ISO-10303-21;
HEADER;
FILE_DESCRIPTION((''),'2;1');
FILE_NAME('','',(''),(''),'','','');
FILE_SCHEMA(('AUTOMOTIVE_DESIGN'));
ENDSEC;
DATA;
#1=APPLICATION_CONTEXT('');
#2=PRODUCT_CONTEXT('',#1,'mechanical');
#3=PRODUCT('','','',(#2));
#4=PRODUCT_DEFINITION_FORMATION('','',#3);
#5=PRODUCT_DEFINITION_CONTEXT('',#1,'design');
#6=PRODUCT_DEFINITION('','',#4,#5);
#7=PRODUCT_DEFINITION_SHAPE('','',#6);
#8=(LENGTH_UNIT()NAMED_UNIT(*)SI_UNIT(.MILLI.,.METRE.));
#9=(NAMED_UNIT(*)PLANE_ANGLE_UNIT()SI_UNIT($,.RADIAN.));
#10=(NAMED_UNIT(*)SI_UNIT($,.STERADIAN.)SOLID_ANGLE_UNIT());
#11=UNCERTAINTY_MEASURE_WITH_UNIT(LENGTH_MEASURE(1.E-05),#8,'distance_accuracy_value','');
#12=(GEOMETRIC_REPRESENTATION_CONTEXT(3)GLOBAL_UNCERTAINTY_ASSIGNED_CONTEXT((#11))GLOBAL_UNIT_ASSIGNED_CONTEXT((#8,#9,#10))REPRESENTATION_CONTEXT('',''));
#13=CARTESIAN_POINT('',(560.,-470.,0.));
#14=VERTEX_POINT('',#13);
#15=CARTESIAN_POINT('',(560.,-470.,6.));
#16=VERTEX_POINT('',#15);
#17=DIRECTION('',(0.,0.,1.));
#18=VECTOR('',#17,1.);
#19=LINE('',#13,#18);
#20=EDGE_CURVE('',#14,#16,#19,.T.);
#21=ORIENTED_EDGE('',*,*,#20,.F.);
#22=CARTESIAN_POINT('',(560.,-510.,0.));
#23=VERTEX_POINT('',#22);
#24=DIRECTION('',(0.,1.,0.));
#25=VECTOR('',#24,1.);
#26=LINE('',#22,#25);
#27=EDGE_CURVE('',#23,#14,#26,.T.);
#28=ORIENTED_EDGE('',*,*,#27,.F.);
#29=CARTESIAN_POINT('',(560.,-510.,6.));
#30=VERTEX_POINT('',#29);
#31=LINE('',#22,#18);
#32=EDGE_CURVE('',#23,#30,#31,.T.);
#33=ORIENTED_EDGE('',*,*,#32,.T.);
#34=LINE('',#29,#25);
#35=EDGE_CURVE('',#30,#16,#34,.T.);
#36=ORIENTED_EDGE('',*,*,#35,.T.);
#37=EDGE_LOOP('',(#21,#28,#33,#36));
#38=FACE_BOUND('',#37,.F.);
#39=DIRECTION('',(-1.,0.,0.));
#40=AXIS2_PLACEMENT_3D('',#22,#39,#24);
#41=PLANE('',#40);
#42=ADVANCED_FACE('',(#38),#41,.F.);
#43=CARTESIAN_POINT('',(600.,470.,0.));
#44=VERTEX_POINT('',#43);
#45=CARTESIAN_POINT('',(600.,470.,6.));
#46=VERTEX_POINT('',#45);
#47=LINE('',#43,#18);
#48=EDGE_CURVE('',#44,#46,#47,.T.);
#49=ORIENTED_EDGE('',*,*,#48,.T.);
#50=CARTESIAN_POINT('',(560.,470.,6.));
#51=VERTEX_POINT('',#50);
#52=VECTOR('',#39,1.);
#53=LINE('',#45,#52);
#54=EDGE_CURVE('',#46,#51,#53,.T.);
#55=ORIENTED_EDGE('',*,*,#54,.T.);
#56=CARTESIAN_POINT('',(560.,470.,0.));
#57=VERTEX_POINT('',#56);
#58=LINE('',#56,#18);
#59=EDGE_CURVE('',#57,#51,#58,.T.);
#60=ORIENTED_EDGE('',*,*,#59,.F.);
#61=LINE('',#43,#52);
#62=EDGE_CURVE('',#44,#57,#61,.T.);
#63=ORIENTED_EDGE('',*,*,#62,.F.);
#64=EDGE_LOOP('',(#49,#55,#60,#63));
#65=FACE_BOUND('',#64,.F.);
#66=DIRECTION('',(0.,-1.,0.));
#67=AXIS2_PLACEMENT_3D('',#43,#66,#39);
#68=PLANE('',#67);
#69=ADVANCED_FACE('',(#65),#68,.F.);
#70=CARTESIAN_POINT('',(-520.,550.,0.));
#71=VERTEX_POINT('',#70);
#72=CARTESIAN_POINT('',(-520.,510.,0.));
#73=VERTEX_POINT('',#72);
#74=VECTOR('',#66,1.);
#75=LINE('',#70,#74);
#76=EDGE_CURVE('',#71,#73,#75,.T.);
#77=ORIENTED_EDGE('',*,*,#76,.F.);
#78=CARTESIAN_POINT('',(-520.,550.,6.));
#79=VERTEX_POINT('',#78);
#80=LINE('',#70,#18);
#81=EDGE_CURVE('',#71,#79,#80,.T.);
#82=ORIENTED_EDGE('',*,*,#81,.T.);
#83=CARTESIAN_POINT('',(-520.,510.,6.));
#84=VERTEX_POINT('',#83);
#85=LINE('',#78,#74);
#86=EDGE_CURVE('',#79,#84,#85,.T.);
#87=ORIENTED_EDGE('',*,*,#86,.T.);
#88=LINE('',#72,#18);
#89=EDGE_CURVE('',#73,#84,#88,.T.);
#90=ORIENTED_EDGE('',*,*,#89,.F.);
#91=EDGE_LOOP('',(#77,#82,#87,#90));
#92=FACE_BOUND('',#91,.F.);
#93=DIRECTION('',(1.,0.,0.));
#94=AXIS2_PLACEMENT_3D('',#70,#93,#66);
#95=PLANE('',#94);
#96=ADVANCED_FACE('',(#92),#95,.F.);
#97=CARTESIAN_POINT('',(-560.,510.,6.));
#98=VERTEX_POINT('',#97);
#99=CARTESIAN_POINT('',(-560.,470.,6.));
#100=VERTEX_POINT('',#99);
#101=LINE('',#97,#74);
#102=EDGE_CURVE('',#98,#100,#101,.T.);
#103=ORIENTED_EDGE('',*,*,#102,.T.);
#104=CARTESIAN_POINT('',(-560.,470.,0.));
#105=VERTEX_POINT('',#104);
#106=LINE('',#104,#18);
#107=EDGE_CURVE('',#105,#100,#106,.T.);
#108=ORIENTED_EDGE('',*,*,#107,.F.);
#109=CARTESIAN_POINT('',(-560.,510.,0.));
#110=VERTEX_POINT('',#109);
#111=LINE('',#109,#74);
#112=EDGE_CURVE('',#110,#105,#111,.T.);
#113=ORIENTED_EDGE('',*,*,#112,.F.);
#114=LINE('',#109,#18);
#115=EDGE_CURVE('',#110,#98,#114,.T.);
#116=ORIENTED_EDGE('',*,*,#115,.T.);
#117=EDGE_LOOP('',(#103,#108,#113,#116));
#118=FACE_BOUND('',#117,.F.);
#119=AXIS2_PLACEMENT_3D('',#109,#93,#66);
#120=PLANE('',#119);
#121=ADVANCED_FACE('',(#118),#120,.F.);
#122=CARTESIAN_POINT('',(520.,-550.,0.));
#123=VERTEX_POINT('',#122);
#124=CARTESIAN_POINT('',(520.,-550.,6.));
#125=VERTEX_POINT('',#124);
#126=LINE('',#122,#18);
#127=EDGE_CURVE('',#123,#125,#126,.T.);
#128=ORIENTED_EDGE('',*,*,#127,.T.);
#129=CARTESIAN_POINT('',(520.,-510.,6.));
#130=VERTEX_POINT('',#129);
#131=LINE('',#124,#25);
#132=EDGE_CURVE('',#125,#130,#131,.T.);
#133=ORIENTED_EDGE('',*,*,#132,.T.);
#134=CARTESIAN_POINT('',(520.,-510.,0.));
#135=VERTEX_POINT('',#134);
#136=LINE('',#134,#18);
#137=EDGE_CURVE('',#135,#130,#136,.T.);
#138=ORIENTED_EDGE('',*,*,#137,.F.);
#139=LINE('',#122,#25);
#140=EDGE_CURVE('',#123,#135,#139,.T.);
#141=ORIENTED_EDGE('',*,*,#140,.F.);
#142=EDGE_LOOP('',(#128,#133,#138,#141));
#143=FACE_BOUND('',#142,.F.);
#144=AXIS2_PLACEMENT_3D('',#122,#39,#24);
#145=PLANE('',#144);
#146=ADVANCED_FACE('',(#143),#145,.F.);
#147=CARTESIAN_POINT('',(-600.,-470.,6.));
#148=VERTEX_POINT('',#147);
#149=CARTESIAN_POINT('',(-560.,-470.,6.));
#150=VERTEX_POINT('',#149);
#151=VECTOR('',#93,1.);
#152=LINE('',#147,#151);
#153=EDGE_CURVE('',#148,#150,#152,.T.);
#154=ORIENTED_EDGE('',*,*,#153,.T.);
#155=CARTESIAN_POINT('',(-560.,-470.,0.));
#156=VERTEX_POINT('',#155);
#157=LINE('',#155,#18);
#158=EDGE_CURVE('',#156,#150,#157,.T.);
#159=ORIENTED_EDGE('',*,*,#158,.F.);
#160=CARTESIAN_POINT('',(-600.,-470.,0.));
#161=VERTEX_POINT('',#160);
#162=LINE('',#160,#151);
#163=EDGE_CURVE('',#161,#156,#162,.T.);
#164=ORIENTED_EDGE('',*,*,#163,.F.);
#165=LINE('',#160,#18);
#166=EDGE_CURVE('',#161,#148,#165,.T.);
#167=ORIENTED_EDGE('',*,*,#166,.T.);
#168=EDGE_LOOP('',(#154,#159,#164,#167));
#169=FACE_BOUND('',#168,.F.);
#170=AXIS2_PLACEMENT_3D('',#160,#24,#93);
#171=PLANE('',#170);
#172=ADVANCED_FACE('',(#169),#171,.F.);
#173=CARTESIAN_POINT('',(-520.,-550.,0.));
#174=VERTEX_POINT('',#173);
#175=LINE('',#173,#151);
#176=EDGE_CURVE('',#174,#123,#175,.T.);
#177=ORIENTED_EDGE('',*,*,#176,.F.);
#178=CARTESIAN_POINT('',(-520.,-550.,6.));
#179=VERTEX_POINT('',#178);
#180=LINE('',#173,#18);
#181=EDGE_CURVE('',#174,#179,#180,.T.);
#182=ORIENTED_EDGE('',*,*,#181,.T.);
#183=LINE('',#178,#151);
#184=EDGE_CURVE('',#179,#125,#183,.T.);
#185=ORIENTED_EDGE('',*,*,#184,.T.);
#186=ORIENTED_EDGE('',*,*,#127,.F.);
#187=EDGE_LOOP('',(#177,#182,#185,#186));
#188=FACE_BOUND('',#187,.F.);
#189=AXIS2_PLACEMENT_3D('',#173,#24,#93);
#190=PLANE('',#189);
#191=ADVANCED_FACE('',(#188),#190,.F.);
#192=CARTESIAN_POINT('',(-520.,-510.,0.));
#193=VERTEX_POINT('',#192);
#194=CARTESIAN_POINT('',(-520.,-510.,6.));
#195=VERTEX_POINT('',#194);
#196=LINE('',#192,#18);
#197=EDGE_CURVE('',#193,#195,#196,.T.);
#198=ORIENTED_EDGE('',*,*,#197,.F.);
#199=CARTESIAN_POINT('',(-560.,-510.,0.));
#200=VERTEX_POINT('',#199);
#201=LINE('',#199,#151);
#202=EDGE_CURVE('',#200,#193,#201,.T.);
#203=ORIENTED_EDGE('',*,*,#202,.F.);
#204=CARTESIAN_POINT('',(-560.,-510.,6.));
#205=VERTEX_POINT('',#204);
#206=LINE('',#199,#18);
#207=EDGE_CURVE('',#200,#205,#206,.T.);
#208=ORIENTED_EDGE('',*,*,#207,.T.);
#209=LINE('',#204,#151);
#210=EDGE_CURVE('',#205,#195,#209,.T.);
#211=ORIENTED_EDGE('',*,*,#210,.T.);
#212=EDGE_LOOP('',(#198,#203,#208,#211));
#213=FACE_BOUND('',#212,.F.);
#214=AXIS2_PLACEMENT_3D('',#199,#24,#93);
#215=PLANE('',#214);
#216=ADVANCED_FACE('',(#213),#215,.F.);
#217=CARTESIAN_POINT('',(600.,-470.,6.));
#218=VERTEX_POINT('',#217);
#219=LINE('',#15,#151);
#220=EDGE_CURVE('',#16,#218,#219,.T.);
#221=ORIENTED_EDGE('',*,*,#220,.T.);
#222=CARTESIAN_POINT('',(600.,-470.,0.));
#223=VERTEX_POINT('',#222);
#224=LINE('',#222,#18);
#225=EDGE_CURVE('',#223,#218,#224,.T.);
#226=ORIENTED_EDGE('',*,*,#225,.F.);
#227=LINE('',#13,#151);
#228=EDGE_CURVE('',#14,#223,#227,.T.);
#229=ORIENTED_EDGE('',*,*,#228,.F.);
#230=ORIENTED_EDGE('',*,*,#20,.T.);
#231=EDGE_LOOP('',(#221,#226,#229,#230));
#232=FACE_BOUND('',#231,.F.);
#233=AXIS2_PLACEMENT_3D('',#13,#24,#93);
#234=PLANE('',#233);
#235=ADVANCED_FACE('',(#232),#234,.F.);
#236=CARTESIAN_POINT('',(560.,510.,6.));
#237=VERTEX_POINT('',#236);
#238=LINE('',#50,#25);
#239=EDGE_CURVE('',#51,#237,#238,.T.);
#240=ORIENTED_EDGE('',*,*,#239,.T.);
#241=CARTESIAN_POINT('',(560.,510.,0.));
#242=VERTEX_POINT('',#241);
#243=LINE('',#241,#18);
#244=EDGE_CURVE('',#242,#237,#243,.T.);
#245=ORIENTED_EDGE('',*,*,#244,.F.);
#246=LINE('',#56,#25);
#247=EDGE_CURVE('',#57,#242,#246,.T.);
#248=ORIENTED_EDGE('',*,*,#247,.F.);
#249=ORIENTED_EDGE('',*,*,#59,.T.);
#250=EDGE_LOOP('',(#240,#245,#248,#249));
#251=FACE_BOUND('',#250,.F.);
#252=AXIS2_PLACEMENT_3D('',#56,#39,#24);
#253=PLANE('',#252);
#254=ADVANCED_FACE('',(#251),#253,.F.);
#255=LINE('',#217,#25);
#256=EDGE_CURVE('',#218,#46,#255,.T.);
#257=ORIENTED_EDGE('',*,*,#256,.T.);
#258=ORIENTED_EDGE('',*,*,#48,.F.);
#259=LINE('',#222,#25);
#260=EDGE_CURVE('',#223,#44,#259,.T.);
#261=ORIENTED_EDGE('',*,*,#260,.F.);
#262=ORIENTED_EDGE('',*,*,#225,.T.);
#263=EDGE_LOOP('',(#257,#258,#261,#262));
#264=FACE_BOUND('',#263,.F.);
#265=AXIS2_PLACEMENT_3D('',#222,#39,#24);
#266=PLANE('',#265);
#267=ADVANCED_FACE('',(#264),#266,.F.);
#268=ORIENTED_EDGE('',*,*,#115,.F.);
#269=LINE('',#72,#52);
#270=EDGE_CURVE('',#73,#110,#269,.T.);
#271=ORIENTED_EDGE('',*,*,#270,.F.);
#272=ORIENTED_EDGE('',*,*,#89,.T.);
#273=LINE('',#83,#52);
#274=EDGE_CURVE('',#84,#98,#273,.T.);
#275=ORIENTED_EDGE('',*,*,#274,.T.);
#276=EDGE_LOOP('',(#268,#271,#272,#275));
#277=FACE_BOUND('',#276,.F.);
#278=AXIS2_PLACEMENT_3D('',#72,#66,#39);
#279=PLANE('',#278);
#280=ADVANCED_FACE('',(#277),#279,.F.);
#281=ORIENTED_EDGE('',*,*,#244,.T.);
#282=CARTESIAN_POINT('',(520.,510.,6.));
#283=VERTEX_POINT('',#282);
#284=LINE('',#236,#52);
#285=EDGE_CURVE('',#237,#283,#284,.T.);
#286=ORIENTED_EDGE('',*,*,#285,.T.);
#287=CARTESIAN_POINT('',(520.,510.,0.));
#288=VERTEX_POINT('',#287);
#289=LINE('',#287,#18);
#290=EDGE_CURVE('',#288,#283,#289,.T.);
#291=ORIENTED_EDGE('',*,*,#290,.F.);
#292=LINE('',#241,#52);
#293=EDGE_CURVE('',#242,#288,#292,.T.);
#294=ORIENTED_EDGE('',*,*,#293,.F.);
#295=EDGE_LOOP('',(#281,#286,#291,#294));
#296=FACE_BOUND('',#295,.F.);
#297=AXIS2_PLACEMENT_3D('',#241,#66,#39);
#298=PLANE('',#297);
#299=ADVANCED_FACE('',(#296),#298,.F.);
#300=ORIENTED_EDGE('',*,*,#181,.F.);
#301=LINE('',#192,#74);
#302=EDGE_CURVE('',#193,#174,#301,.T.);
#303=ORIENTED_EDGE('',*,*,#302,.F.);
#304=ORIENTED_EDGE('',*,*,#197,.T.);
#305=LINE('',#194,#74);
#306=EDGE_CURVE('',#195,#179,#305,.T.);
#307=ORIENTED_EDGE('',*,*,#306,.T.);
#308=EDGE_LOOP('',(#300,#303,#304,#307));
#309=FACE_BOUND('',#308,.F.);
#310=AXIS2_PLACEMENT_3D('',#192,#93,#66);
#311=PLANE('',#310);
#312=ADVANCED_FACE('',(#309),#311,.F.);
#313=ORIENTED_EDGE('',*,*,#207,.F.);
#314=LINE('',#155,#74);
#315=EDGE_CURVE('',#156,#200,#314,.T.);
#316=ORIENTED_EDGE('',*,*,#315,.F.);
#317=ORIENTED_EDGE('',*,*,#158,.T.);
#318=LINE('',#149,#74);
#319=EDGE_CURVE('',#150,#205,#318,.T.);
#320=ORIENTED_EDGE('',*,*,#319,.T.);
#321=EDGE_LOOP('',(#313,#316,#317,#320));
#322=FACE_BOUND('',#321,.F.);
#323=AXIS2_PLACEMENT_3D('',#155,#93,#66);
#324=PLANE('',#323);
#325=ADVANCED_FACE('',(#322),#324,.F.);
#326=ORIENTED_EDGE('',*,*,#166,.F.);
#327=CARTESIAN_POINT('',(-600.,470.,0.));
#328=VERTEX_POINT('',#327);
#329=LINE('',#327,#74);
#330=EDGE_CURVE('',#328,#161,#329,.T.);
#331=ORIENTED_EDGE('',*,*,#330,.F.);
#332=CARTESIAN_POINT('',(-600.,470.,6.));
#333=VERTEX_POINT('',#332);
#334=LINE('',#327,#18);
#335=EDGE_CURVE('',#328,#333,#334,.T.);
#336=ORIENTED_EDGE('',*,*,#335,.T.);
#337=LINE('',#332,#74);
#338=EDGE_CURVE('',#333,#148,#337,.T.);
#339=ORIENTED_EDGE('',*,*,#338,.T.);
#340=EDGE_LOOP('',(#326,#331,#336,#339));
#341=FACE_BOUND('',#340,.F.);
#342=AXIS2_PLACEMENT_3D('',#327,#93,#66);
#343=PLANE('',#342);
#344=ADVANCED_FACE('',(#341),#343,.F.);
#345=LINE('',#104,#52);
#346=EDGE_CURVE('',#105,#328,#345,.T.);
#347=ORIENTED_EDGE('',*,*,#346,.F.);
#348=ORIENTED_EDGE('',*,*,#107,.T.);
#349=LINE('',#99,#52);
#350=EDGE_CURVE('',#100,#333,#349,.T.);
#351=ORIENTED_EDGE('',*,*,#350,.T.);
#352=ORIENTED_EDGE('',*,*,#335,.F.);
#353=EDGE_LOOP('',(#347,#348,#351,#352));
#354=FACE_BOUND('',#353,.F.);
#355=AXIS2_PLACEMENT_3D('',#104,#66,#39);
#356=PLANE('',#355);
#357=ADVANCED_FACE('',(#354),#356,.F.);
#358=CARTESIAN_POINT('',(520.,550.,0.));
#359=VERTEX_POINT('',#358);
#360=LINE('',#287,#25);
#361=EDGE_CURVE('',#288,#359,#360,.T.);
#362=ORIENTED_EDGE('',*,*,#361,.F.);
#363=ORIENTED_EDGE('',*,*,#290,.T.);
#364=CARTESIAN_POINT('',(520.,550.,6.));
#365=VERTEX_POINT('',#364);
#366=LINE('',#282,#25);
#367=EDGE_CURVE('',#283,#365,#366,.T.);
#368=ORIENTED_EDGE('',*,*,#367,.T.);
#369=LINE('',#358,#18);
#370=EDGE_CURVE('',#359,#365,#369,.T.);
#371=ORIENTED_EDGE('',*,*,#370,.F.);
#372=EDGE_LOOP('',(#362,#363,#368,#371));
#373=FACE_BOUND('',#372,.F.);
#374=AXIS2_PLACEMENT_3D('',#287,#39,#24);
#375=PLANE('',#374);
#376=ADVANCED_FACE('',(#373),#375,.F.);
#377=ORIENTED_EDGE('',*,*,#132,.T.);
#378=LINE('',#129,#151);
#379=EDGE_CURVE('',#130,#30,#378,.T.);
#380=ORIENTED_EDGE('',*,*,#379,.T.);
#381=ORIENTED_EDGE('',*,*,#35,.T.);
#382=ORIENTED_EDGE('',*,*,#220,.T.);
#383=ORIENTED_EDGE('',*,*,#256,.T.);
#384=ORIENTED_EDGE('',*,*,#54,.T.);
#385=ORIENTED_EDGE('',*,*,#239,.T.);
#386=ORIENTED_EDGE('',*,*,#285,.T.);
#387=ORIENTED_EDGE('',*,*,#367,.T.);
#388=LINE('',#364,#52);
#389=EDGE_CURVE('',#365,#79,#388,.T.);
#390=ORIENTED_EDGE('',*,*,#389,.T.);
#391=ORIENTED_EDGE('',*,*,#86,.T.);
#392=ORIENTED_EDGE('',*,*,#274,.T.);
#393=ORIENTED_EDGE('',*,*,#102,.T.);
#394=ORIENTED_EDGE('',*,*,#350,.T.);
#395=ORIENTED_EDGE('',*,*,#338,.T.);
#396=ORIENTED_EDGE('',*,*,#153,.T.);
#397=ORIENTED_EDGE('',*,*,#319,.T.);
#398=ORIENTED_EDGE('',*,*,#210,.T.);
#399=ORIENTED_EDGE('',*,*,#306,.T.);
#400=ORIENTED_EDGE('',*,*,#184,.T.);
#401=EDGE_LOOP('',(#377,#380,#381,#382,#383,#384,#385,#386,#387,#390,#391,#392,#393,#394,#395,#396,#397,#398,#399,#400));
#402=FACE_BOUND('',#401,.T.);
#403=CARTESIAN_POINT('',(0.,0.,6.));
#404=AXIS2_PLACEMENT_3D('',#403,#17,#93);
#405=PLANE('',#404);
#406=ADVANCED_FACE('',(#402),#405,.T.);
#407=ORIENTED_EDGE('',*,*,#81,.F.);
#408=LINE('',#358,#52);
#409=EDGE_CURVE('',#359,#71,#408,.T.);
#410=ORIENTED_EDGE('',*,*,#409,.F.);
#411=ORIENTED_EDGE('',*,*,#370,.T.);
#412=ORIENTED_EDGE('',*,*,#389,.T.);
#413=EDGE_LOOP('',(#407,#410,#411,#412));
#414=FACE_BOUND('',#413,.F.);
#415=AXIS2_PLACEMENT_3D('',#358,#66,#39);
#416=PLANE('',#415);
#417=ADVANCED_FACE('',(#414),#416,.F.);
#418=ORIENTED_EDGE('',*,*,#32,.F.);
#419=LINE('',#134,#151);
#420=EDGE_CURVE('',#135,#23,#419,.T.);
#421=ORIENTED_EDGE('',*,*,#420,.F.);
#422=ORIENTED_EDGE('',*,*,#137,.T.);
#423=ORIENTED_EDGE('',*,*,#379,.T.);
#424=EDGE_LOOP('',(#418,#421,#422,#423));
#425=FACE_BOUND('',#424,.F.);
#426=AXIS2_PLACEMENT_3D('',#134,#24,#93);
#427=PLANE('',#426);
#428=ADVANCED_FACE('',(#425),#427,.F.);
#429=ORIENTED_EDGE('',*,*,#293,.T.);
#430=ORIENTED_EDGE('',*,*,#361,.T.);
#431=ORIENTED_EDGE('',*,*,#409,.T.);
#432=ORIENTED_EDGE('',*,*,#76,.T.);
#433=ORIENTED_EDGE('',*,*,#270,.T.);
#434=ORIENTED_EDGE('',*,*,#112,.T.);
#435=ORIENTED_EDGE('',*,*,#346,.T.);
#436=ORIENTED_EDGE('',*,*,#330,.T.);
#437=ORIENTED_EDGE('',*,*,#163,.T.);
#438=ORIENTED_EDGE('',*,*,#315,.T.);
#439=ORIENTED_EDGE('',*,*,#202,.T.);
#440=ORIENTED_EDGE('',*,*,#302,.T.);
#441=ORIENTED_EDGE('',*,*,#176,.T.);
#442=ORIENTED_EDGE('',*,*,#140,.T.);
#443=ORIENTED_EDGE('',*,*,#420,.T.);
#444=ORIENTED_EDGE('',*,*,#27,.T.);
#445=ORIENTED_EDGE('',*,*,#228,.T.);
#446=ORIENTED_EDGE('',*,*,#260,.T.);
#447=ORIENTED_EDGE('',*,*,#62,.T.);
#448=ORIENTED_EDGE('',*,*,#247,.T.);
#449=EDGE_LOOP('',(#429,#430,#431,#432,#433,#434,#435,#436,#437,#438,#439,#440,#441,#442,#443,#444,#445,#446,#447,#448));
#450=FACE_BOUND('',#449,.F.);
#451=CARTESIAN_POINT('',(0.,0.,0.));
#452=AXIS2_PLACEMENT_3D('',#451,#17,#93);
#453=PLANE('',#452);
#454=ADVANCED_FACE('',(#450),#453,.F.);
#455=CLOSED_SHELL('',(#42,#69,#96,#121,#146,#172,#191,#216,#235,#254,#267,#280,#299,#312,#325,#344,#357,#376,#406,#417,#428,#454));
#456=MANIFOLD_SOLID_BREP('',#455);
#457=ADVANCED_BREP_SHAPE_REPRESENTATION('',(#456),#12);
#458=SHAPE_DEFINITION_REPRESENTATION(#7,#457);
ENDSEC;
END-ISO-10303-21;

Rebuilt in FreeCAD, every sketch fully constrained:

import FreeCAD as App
import Part
import Sketcher

V = App.Vector
Q = App.Units.Quantity


def add_polygon(sketch, points):
    """Adds a closed chain of lines whose ends are joined by coincident constraints."""
    first, n = sketch.GeometryCount, len(points)
    for a, b in zip(points, points[1:] + points[:1]):
        sketch.addGeometry(Part.LineSegment(App.Vector(*a, 0), App.Vector(*b, 0)), False)
    for i in range(n):
        sketch.addConstraint(Sketcher.Constraint("Coincident", first + i, 2, first + (i + 1) % n, 1))

doc = App.newDocument("Part")
body = doc.addObject("PartDesign::Body", "Body")

# Sketch on XY plane
sketch1 = body.newObject("Sketcher::SketchObject", "Sketch")
sketch1.AttachmentSupport = (doc.getObject("XY_Plane"), [""])
sketch1.MapMode = "FlatFace"
add_polygon(sketch1, [(520, 550), (-520, 550), (-520, 510), (-560, 510), (-560, 470), (-600, 470), (-600, -470), (-560, -470), (-560, -510), (-520, -510), (-520, -550), (520, -550), (520, -510), (560, -510), (560, -470), (600, -470), (600, 470), (560, 470), (560, 510), (520, 510)])  # lines 0-19
sketch1.addConstraint([
    Sketcher.Constraint("Horizontal", 0),
    Sketcher.Constraint("Vertical", 1),
    Sketcher.Constraint("Horizontal", 2),
    Sketcher.Constraint("Vertical", 3),
    Sketcher.Constraint("Horizontal", 4),
    Sketcher.Constraint("Vertical", 5),
    Sketcher.Constraint("Horizontal", 6),
    Sketcher.Constraint("Vertical", 7),
    Sketcher.Constraint("Horizontal", 8),
    Sketcher.Constraint("Vertical", 9),
    Sketcher.Constraint("Horizontal", 10),
    Sketcher.Constraint("Vertical", 11),
    Sketcher.Constraint("Horizontal", 12),
    Sketcher.Constraint("Vertical", 13),
    Sketcher.Constraint("Horizontal", 14),
    Sketcher.Constraint("Vertical", 15),
    Sketcher.Constraint("Horizontal", 16),
    Sketcher.Constraint("Vertical", 17),
    Sketcher.Constraint("Horizontal", 18),
    Sketcher.Constraint("Vertical", 19),
    Sketcher.Constraint("Symmetric", 0, 2, 10, 2, -1, 1),
    Sketcher.Constraint("Symmetric", 2, 2, 12, 2, -1, 1),
    Sketcher.Constraint("Symmetric", 4, 2, 14, 2, -1, 1),
    Sketcher.Constraint("Symmetric", 6, 2, 16, 2, -1, 1),
    Sketcher.Constraint("Symmetric", 8, 2, 18, 2, -1, 1),
    Sketcher.Constraint("Symmetric", 8, 2, 11, 2, -2),
    Sketcher.Constraint("Symmetric", 6, 2, 13, 2, -2),
    Sketcher.Constraint("Equal", 2, 4),
    Sketcher.Constraint("Equal", 18, 1),
    Sketcher.Constraint("Equal", 1, 3),
    Sketcher.Constraint("DistanceX", 0, 2, 0, 1, Q("1040 mm")),
    Sketcher.Constraint("DistanceX", 2, 2, 2, 1, Q("40 mm")),
    Sketcher.Constraint("DistanceY", 5, 2, 5, 1, Q("940 mm")),
])
pad1 = body.newObject("PartDesign::Pad", "Pad")
pad1.Profile = sketch1
pad1.Length = 6

doc.recompute()
